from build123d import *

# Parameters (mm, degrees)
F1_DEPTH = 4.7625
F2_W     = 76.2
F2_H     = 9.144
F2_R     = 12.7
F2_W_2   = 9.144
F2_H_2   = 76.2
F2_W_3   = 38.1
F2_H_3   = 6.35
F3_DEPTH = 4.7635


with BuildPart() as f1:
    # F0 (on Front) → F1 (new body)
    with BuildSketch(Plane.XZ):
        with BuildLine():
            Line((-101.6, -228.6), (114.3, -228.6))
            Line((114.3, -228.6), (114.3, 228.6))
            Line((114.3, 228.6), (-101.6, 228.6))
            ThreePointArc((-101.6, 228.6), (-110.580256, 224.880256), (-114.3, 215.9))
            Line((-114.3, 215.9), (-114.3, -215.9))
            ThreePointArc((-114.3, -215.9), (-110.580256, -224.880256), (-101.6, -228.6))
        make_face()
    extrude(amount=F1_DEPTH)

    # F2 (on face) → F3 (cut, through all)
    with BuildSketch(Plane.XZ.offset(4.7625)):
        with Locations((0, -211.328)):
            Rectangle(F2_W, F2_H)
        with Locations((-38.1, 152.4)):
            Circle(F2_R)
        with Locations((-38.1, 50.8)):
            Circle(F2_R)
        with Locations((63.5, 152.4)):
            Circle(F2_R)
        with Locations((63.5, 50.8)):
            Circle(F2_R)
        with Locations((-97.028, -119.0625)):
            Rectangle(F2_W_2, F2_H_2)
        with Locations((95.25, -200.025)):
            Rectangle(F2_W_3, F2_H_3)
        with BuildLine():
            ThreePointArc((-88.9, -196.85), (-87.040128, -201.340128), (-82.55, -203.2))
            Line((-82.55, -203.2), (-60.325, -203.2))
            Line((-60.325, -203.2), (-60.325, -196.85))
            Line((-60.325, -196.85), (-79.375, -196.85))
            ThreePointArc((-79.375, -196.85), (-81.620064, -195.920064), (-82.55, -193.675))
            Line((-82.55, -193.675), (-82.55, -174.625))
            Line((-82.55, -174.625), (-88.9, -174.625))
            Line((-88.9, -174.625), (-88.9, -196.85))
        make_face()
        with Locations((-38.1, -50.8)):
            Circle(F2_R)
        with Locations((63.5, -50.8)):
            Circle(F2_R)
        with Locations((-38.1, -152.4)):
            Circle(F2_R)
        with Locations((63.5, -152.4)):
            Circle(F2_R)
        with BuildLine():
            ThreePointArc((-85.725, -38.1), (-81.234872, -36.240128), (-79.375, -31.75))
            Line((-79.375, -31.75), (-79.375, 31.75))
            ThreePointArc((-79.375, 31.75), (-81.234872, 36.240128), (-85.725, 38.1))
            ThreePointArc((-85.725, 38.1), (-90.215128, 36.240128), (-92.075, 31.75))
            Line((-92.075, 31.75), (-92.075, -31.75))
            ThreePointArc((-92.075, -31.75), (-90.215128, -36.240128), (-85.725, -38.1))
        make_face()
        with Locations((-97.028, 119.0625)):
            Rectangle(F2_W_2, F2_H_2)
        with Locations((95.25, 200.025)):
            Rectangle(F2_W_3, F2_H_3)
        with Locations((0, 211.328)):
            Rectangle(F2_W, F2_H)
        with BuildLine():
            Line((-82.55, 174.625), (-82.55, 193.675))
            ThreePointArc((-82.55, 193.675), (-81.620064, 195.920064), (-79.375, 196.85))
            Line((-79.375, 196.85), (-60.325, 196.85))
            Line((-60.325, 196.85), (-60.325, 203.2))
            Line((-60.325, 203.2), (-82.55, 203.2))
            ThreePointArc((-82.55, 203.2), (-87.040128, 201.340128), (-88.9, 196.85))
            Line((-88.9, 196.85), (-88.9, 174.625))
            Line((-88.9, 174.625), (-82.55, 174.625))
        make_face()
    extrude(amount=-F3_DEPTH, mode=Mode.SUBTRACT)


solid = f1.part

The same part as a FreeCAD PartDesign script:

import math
import FreeCAD as App
import Part
import Sketcher

V = App.Vector
Q = App.Units.Quantity


def add_polygon(sketch, points):
    """Adds a closed chain of lines whose ends are joined by coincident constraints."""
    first, n = sketch.GeometryCount, len(points)
    for a, b in zip(points, points[1:] + points[:1]):
        sketch.addGeometry(Part.LineSegment(App.Vector(*a, 0), App.Vector(*b, 0)), False)
    for i in range(n):
        sketch.addConstraint(Sketcher.Constraint("Coincident", first + i, 2, first + (i + 1) % n, 1))

doc = App.newDocument("Part")
params = doc.addObject("Spreadsheet::Sheet", "Params")
for row, (alias, value) in enumerate([
    ("sketch1_radius", "0.5 in"),
    ("sketch1_height", "18 in"),
    ("sketch1_width", "8.5 in"),
    ("pad1_length", "0.1875 in"),
    ("sketch2_diameter", "1 in"),
    ("sketch2_width", "3 in"),
    ("sketch2_radius", "0.25 in"),
    ("sketch2_width2", "1.5 in"),
    ("sketch2_height", "2.5 in"),
], start=1):
    params.set(f"A{row}", alias)
    params.set(f"B{row}", "=" + value)
    params.setAlias(f"B{row}", alias)

body = doc.addObject("PartDesign::Body", "Body")

# Sketch on XZ plane
sketch1 = body.newObject("Sketcher::SketchObject", "Sketch")
sketch1.AttachmentSupport = (doc.getObject("XZ_Plane"), [""])
sketch1.MapMode = "FlatFace"
sketch1.addGeometry([
    Part.LineSegment(V(-102, -229, 0), V(114, -229, 0)),  # 0
    Part.LineSegment(V(114, -229, 0), V(114, 229, 0)),  # 1
    Part.LineSegment(V(114, 229, 0), V(-102, 229, 0)),  # 2
    Part.ArcOfCircle(Part.Circle(V(-102, 216, 0), V(0, 0, 1), 13), math.radians(90), math.radians(180)),  # 3
    Part.LineSegment(V(-114, 216, 0), V(-114, -216, 0)),  # 4
    Part.ArcOfCircle(Part.Circle(V(-102, -216, 0), V(0, 0, 1), 13), math.radians(-180), math.radians(-90)),  # 5
], False)
sketch1.addConstraint([
    Sketcher.Constraint("Coincident", 0, 2, 1, 1),
    Sketcher.Constraint("Coincident", 1, 2, 2, 1),
    Sketcher.Constraint("Tangent", 2, 2, 3, 1),
    Sketcher.Constraint("Tangent", 3, 2, 4, 1),
    Sketcher.Constraint("Tangent", 4, 2, 5, 1),
    Sketcher.Constraint("Tangent", 5, 2, 0, 1),
    Sketcher.Constraint("Horizontal", 0),
    Sketcher.Constraint("Vertical", 1),
    Sketcher.Constraint("Horizontal", 2),
    Sketcher.Constraint("Vertical", 4),
    Sketcher.Constraint("Equal", 3, 5),
    Sketcher.Constraint("Radius", 3, Q("0.5 in")),
    Sketcher.Constraint("DistanceY", 1, 1, 1, 2, Q("18 in")),
    Sketcher.Constraint("DistanceX", 0, 1, 0, 2, Q("8.5 in")),
    Sketcher.Constraint("DistanceX", 3, 3, -1, 1, Q("4 in")),
    Sketcher.Constraint("DistanceY", 0, 2, -1, 1, Q("9 in")),
])
sketch1.setExpression("Constraints[11]", "Params.sketch1_radius")
sketch1.setExpression("Constraints[12]", "Params.sketch1_height")
sketch1.setExpression("Constraints[13]", "Params.sketch1_width")
pad1 = body.newObject("PartDesign::Pad", "Pad")
pad1.Profile = sketch1
pad1.setExpression("Length", "Params.pad1_length")

# Sketch on XZ plane
sketch2 = body.newObject("Sketcher::SketchObject", "Sketch001")
sketch2.AttachmentSupport = (doc.getObject("XZ_Plane"), [""])
sketch2.MapMode = "FlatFace"
sketch2.AttachmentOffset = App.Placement(V(0, 0, 0.1875 * 25.4), App.Rotation())
add_polygon(sketch2, [(-38.1, -206.8), (-38.1, -215.9), (38.1, -215.9), (38.1, -206.8)])  # lines 0-3
sketch2.addGeometry(Part.Circle(V(-38.1, 152.4, 0), V(0, 0, 1), 12.7), False)  # 4
sketch2.addGeometry(Part.Circle(V(-38.1, 50.8, 0), V(0, 0, 1), 12.7), False)  # 5
sketch2.addGeometry(Part.Circle(V(63.5, 152.4, 0), V(0, 0, 1), 12.7), False)  # 6
sketch2.addGeometry(Part.Circle(V(63.5, 50.8, 0), V(0, 0, 1), 12.7), False)  # 7
add_polygon(sketch2, [(-101.6, -81), (-101.6, -157.2), (-92.5, -157.2), (-92.5, -81)])  # lines 8-11
add_polygon(sketch2, [(76.2, -196.8), (76.2, -203.2), (114.3, -203.2), (114.3, -196.8)])  # lines 12-15
sketch2.addGeometry(Part.ArcOfCircle(Part.Circle(V(-82.5, -196.8, 0), V(0, 0, 1), 6.4), math.radians(-180), math.radians(-90)), False)  # 16
sketch2.addGeometry(Part.LineSegment(V(-82.5, -203.2, 0), V(-60.3, -203.2, 0)), False)  # 17
sketch2.addGeometry(Part.LineSegment(V(-60.3, -203.2, 0), V(-60.3, -196.8, 0)), False)  # 18
sketch2.addGeometry(Part.LineSegment(V(-60.3, -196.8, 0), V(-79.4, -196.8, 0)), False)  # 19
sketch2.addGeometry(Part.ArcOfCircle(Part.Circle(V(-79.4, -193.7, 0), V(0, 0, 1), 3.2), math.radians(-180), math.radians(-90)), False)  # 20
sketch2.addGeometry(Part.LineSegment(V(-82.5, -193.7, 0), V(-82.5, -174.6, 0)), False)  # 21
sketch2.addGeometry(Part.LineSegment(V(-82.5, -174.6, 0), V(-88.9, -174.6, 0)), False)  # 22
sketch2.addGeometry(Part.LineSegment(V(-88.9, -174.6, 0), V(-88.9, -196.8, 0)), False)  # 23
sketch2.addGeometry(Part.Circle(V(-38.1, -50.8, 0), V(0, 0, 1), 12.7), False)  # 24
sketch2.addGeometry(Part.Circle(V(63.5, -50.8, 0), V(0, 0, 1), 12.7), False)  # 25
sketch2.addGeometry(Part.Circle(V(-38.1, -152.4, 0), V(0, 0, 1), 12.7), False)  # 26
sketch2.addGeometry(Part.Circle(V(63.5, -152.4, 0), V(0, 0, 1), 12.7), False)  # 27
sketch2.addGeometry(Part.ArcOfCircle(Part.Circle(V(-85.7, -31.7, 0), V(0, 0, 1), 6.4), math.radians(-90), math.radians(0)), False)  # 28
sketch2.addGeometry(Part.LineSegment(V(-79.4, -31.8, 0), V(-79.4, 31.8, 0)), False)  # 29
sketch2.addGeometry(Part.ArcOfCircle(Part.Circle(V(-85.7, 31.7, 0), V(0, 0, 1), 6.4), math.radians(0), math.radians(90)), False)  # 30
sketch2.addGeometry(Part.ArcOfCircle(Part.Circle(V(-85.7, 31.7, 0), V(0, 0, 1), 6.4), math.radians(90), math.radians(180)), False)  # 31
sketch2.addGeometry(Part.LineSegment(V(-92.1, 31.8, 0), V(-92.1, -31.8, 0)), False)  # 32
sketch2.addGeometry(Part.ArcOfCircle(Part.Circle(V(-85.7, -31.7, 0), V(0, 0, 1), 6.4), math.radians(-180), math.radians(-90)), False)  # 33
add_polygon(sketch2, [(-101.6, 157.2), (-101.6, 81), (-92.5, 81), (-92.5, 157.2)])  # lines 34-37
add_polygon(sketch2, [(76.2, 203.2), (76.2, 196.8), (114.3, 196.8), (114.3, 203.2)])  # lines 38-41
add_polygon(sketch2, [(-38.1, 215.9), (-38.1, 206.8), (38.1, 206.8), (38.1, 215.9)])  # lines 42-45
sketch2.addGeometry(Part.LineSegment(V(-82.5, 174.6, 0), V(-82.5, 193.7, 0)), False)  # 46
sketch2.addGeometry(Part.ArcOfCircle(Part.Circle(V(-79.4, 193.7, 0), V(0, 0, 1), 3.2), math.radians(90), math.radians(180)), False)  # 47
sketch2.addGeometry(Part.LineSegment(V(-79.4, 196.8, 0), V(-60.3, 196.8, 0)), False)  # 48
sketch2.addGeometry(Part.LineSegment(V(-60.3, 196.8, 0), V(-60.3, 203.2, 0)), False)  # 49
sketch2.addGeometry(Part.LineSegment(V(-60.3, 203.2, 0), V(-82.5, 203.2, 0)), False)  # 50
sketch2.addGeometry(Part.ArcOfCircle(Part.Circle(V(-82.5, 196.8, 0), V(0, 0, 1), 6.4), math.radians(90), math.radians(180)), False)  # 51
sketch2.addGeometry(Part.LineSegment(V(-88.9, 196.8, 0), V(-88.9, 174.6, 0)), False)  # 52
sketch2.addGeometry(Part.LineSegment(V(-88.9, 174.6, 0), V(-82.5, 174.6, 0)), False)  # 53
sketch2.addConstraint([
    Sketcher.Constraint("Tangent", 16, 2, 17, 1),
    Sketcher.Constraint("Coincident", 17, 2, 18, 1),
    Sketcher.Constraint("Coincident", 18, 2, 19, 1),
    Sketcher.Constraint("Tangent", 19, 2, 20, 2),
    Sketcher.Constraint("Tangent", 20, 1, 21, 1),
    Sketcher.Constraint("Coincident", 21, 2, 22, 1),
    Sketcher.Constraint("Coincident", 22, 2, 23, 1),
    Sketcher.Constraint("Tangent", 23, 2, 16, 1),
    Sketcher.Constraint("Tangent", 28, 2, 29, 1),
    Sketcher.Constraint("Tangent", 29, 2, 30, 1),
    Sketcher.Constraint("Tangent", 30, 2, 31, 1),
    Sketcher.Constraint("Tangent", 31, 2, 32, 1),
    Sketcher.Constraint("Tangent", 32, 2, 33, 1),
    Sketcher.Constraint("Tangent", 33, 2, 28, 1),
    Sketcher.Constraint("Tangent", 46, 2, 47, 2),
    Sketcher.Constraint("Tangent", 47, 1, 48, 1),
    Sketcher.Constraint("Coincident", 48, 2, 49, 1),
    Sketcher.Constraint("Coincident", 49, 2, 50, 1),
    Sketcher.Constraint("Tangent", 50, 2, 51, 1),
    Sketcher.Constraint("Tangent", 51, 2, 52, 1),
    Sketcher.Constraint("Coincident", 52, 2, 53, 1),
    Sketcher.Constraint("Coincident", 53, 2, 46, 1),
    Sketcher.Constraint("Vertical", 0),
    Sketcher.Constraint("Horizontal", 1),
    Sketcher.Constraint("Vertical", 2),
    Sketcher.Constraint("Horizontal", 3),
    Sketcher.Constraint("Vertical", 8),
    Sketcher.Constraint("Horizontal", 9),
    Sketcher.Constraint("Vertical", 10),
    Sketcher.Constraint("Horizontal", 11),
    Sketcher.Constraint("Vertical", 12),
    Sketcher.Constraint("Horizontal", 13),
    Sketcher.Constraint("Vertical", 14),
    Sketcher.Constraint("Horizontal", 15),
    Sketcher.Constraint("Horizontal", 17),
    Sketcher.Constraint("Vertical", 18),
    Sketcher.Constraint("Horizontal", 19),
    Sketcher.Constraint("Vertical", 21),
    Sketcher.Constraint("Horizontal", 22),
    Sketcher.Constraint("Vertical", 23),
    Sketcher.Constraint("Vertical", 29),
    Sketcher.Constraint("Vertical", 32),
    Sketcher.Constraint("Vertical", 34),
    Sketcher.Constraint("Horizontal", 35),
    Sketcher.Constraint("Vertical", 36),
    Sketcher.Constraint("Horizontal", 37),
    Sketcher.Constraint("Vertical", 38),
    Sketcher.Constraint("Horizontal", 39),
    Sketcher.Constraint("Vertical", 40),
    Sketcher.Constraint("Horizontal", 41),
    Sketcher.Constraint("Vertical", 42),
    Sketcher.Constraint("Horizontal", 43),
    Sketcher.Constraint("Vertical", 44),
    Sketcher.Constraint("Horizontal", 45),
    Sketcher.Constraint("Vertical", 46),
    Sketcher.Constraint("Horizontal", 48),
    Sketcher.Constraint("Vertical", 49),
    Sketcher.Constraint("Horizontal", 50),
    Sketcher.Constraint("Vertical", 52),
    Sketcher.Constraint("Horizontal", 53),
    Sketcher.Constraint("Equal", 4, 5),
    Sketcher.Constraint("Equal", 5, 6),
    Sketcher.Constraint("Equal", 6, 7),
    Sketcher.Constraint("Equal", 7, 24),
    Sketcher.Constraint("Equal", 24, 25),
    Sketcher.Constraint("Equal", 25, 26),
    Sketcher.Constraint("Equal", 26, 27),
    Sketcher.Constraint("Equal", 16, 28),
    Sketcher.Constraint("Equal", 28, 30),
    Sketcher.Constraint("Equal", 30, 31),
    Sketcher.Constraint("Equal", 20, 47),
    Sketcher.Constraint("Equal", 33, 51),
    Sketcher.Constraint("Symmetric", 2, 2, 42, 2, -1, 1),
    Sketcher.Constraint("Symmetric", 0, 2, 44, 2, -1, 1),
    Sketcher.Constraint("Symmetric", 5, 3, 24, 3, -1),
    Sketcher.Constraint("Symmetric", 7, 3, 25, 3, -1),
    Sketcher.Constraint("Symmetric", 4, 3, 26, 3, -1),
    Sketcher.Constraint("Symmetric", 6, 3, 27, 3, -1),
    Sketcher.Constraint("Symmetric", 20, 3, 47, 3, -1),
    Sketcher.Constraint("Symmetric", 16, 3, 51, 3, -1),
    Sketcher.Constraint("Symmetric", 30, 2, 33, 2, -1),
    Sketcher.Constraint("Symmetric", 11, 2, 34, 2, -1),
    Sketcher.Constraint("Symmetric", 9, 2, 36, 2, -1),
    Sketcher.Constraint("Symmetric", 15, 2, 38, 2, -1),
    Sketcher.Constraint("Symmetric", 13, 2, 40, 2, -1),
    Sketcher.Constraint("Horizontal", 4, 3, 6, 3),
    Sketcher.Constraint("Horizontal", 5, 3, 7, 3),
    Sketcher.Constraint("Horizontal", 16, 3, 14, 2),
    Sketcher.Constraint("Horizontal", 13, 2, 16, 2),
    Sketcher.Constraint("Horizontal", 15, 2, 18, 2),
    Sketcher.Constraint("Vertical", 4, 3, 5, 3),
    Sketcher.Constraint("Vertical", 6, 3, 7, 3),
    Sketcher.Constraint("Vertical", 26, 3, 0, 2),
    Sketcher.Constraint("Vertical", 16, 2, 20, 1),
    Sketcher.Constraint("Vertical", 19, 2, 28, 2),
    Sketcher.Constraint("Vertical", 33, 3, 30, 2),
    Sketcher.Constraint("Vertical", 3, 2, 42, 2),
    Sketcher.Constraint("Vertical", 18, 2, 48, 2),
    Sketcher.Constraint("Equal", 37, 0),
    Sketcher.Constraint("Equal", 45, 8),
    Sketcher.Constraint("Equal", 48, 21),
    Sketcher.Constraint("Equal", 21, 46),
    Sketcher.Constraint("Diameter", 4, Q("1 in")),
    Sketcher.Constraint("DistanceX", 1, 1, 1, 2, Q("3 in")),
    Sketcher.Constraint("Radius", 16, Q("0.25 in")),
    Sketcher.Constraint("DistanceX", 13, 1, 13, 2, Q("1.5 in")),
    Sketcher.Constraint("DistanceY", 29, 1, 29, 2, Q("2.5 in")),
    Sketcher.Constraint("DistanceY", -1, 1, 4, 3, Q("6 in")),
    Sketcher.Constraint("DistanceY", -1, 1, 5, 3, Q("2 in")),
    Sketcher.Constraint("DistanceX", 8, 2, -1, 1, Q("4 in")),
    Sketcher.Constraint("DistanceX", -1, 1, 12, 2, Q("3 in")),
    Sketcher.Constraint("DistanceY", 12, 2, -1, 1, Q("8 in")),
    Sketcher.Constraint("Radius", 20, Q("0.125 in")),
    Sketcher.Constraint("DistanceX", 9, 1, 9, 2, Q("0.36 in")),
    Sketcher.Constraint("DistanceX", 19, 2, 19, 1, Q("0.75 in")),
    Sketcher.Constraint("DistanceX", -1, 1, 6, 3, Q("2.5 in")),
    Sketcher.Constraint("DistanceY", 0, 2, -1, 1, Q("8.5 in")),
    Sketcher.Constraint("DistanceX", 22, 2, -1, 1, Q("3.5 in")),
    Sketcher.Constraint("DistanceY", 8, 2, -1, 1, Q("6.1875 in")),
])
sketch2.setExpression("Constraints[126]", "Params.sketch2_diameter")
sketch2.setExpression("Constraints[127]", "Params.sketch2_width")
sketch2.setExpression("Constraints[128]", "Params.sketch2_radius")
sketch2.setExpression("Constraints[129]", "Params.sketch2_width2")
sketch2.setExpression("Constraints[130]", "Params.sketch2_height")
pocket1 = body.newObject("PartDesign::Pocket", "Pocket")
pocket1.Profile = sketch2
pocket1.Type = "ThroughAll"

doc.recompute()
